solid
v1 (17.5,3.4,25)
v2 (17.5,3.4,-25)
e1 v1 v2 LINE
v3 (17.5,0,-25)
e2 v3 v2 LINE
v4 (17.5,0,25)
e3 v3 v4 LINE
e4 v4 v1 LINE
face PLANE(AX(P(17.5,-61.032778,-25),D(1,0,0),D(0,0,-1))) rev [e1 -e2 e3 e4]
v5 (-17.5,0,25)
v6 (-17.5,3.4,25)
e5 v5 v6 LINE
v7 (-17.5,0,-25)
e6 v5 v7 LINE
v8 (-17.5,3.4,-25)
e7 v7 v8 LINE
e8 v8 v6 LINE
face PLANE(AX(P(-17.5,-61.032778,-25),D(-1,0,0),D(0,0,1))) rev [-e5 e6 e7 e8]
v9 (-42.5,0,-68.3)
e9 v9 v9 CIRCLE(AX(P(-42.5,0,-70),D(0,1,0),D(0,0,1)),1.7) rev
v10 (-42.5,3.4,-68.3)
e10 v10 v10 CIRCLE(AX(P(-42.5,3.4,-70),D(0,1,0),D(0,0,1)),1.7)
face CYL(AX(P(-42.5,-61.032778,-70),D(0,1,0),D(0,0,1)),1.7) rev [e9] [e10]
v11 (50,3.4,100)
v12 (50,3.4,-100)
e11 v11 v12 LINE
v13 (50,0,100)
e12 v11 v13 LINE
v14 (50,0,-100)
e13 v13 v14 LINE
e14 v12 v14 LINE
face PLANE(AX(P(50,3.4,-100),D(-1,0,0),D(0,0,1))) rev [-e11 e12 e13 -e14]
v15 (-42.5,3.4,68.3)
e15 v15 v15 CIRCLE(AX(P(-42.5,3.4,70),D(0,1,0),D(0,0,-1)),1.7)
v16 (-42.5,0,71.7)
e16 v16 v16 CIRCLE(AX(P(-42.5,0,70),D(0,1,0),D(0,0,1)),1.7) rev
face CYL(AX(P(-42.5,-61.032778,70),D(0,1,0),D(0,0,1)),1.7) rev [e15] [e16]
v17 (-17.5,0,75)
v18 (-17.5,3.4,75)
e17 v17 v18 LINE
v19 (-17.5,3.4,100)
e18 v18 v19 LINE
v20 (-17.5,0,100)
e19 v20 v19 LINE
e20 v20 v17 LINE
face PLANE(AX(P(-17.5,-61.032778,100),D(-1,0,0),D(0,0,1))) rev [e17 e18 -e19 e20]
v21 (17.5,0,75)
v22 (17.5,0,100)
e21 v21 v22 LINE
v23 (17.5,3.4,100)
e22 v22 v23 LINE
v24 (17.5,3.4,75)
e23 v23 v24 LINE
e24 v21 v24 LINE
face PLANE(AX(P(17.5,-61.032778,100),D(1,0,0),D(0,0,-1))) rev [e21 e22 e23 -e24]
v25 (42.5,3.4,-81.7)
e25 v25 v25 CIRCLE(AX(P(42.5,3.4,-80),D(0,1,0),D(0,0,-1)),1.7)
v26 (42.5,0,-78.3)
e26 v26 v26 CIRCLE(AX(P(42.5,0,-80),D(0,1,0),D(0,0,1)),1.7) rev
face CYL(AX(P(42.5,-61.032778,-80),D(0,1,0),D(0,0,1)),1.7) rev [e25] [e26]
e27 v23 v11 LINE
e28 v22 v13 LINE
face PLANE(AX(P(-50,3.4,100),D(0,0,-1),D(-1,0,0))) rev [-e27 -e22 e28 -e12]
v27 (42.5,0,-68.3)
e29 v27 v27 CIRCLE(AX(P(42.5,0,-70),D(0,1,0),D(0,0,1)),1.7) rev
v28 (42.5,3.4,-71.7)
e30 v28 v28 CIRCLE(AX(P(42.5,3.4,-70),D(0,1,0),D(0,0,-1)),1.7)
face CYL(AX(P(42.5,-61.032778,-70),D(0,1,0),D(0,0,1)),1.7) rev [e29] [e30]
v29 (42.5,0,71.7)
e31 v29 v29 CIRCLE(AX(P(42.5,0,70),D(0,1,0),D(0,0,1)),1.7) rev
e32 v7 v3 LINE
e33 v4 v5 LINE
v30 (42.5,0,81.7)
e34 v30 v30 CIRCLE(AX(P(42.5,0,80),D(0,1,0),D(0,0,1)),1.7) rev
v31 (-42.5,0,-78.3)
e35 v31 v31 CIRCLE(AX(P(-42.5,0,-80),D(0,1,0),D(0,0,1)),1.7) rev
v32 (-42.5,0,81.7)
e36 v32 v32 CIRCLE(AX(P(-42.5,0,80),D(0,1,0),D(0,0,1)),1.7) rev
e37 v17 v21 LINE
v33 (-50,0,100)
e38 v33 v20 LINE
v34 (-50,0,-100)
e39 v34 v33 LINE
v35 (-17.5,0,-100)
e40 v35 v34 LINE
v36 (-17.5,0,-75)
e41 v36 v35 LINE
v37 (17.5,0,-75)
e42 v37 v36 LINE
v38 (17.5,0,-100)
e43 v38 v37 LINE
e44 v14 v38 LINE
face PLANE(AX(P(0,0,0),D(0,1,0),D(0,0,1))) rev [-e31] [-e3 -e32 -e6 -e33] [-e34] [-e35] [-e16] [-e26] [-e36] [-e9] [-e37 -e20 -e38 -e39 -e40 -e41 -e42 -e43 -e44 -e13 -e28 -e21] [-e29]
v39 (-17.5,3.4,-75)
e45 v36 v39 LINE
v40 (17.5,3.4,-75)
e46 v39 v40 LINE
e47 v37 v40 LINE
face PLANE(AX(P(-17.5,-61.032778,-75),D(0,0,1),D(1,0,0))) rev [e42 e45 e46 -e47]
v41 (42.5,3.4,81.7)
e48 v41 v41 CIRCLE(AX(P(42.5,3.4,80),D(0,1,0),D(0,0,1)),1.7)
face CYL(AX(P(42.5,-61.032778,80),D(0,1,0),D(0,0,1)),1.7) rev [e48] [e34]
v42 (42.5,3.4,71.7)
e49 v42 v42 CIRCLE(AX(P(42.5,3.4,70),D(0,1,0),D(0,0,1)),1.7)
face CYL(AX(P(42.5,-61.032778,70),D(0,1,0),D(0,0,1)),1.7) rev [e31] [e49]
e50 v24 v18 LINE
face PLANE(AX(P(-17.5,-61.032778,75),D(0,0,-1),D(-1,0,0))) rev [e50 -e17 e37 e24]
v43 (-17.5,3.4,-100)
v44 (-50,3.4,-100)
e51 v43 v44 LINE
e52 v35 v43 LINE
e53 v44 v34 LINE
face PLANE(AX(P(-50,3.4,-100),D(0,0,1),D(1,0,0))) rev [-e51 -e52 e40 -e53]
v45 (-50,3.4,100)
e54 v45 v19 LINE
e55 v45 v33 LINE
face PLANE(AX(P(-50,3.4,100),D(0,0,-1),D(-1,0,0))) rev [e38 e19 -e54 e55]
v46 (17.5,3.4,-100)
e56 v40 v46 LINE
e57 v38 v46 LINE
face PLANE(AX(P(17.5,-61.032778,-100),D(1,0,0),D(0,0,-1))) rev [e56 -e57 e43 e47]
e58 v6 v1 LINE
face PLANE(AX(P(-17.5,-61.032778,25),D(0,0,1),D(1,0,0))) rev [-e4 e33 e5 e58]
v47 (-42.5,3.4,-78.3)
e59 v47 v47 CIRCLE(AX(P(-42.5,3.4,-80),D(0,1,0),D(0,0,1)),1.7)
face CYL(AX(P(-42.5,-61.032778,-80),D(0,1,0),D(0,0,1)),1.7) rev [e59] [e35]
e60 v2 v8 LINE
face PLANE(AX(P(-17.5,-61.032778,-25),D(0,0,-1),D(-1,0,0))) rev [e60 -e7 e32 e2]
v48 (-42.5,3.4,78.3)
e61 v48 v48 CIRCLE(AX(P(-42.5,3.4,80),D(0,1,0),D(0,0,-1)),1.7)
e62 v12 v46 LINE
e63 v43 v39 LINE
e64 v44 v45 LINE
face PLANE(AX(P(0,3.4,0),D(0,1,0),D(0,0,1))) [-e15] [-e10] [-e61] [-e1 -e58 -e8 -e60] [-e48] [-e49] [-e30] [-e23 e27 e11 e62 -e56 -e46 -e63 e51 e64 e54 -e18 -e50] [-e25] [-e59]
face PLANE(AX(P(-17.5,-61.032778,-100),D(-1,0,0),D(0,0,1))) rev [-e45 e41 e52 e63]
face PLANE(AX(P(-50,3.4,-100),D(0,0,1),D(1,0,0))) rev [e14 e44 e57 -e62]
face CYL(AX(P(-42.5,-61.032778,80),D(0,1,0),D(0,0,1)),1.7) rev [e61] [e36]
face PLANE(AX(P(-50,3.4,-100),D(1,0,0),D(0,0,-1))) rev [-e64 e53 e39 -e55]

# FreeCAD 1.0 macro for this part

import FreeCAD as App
import Part
import Sketcher

V = App.Vector
Q = App.Units.Quantity


def add_polygon(sketch, points):
    """Adds a closed chain of lines whose ends are joined by coincident constraints."""
    first, n = sketch.GeometryCount, len(points)
    for a, b in zip(points, points[1:] + points[:1]):
        sketch.addGeometry(Part.LineSegment(App.Vector(*a, 0), App.Vector(*b, 0)), False)
    for i in range(n):
        sketch.addConstraint(Sketcher.Constraint("Coincident", first + i, 2, first + (i + 1) % n, 1))

doc = App.newDocument("Part")
body = doc.addObject("PartDesign::Body", "Body")

# Sketch on XZ plane
sketch1 = body.newObject("Sketcher::SketchObject", "Sketch")
sketch1.AttachmentSupport = (doc.getObject("XZ_Plane"), [""])
sketch1.MapMode = "FlatFace"
add_polygon(sketch1, [(-50, -100), (-50, 100), (50, 100), (50, -100)])  # lines 0-3
sketch1.addConstraint(Sketcher.Constraint("Vertical", 0))
sketch1.addConstraint(Sketcher.Constraint("Horizontal", 1))
sketch1.addConstraint(Sketcher.Constraint("Vertical", 2))
sketch1.addConstraint(Sketcher.Constraint("Horizontal", 3))
sketch1.addConstraint(Sketcher.Constraint("Symmetric", 0, 2, 2, 2, -1, 1))
sketch1.addConstraint(Sketcher.Constraint("DistanceX", 1, 1, 1, 2, Q("100 mm")))
sketch1.addConstraint(Sketcher.Constraint("DistanceY", 0, 1, 0, 2, Q("200 mm")))
pad1 = body.newObject("PartDesign::Pad", "Pad")
pad1.Profile = sketch1
pad1.Length = 3.4
pad1.Reversed = True

# Sketch on XZ plane
sketch2 = body.newObject("Sketcher::SketchObject", "Sketch001")
sketch2.AttachmentSupport = (doc.getObject("XZ_Plane"), [""])
sketch2.MapMode = "FlatFace"
sketch2.AttachmentOffset = App.Placement(V(0, 0, -3.4), App.Rotation())
sketch2.addGeometry(Part.Circle(V(42.5, 80, 0), V(0, 0, 1), 1.7), False)  # 0
sketch2.addGeometry(Part.Circle(V(42.5, 70, 0), V(0, 0, 1), 1.7), False)  # 1
sketch2.addGeometry(Part.Circle(V(-42.5, 80, 0), V(0, 0, 1), 1.7), False)  # 2
sketch2.addGeometry(Part.Circle(V(-42.5, 70, 0), V(0, 0, 1), 1.7), False)  # 3
sketch2.addGeometry(Part.Circle(V(42.5, -70, 0), V(0, 0, 1), 1.7), False)  # 4
sketch2.addGeometry(Part.Circle(V(42.5, -80, 0), V(0, 0, 1), 1.7), False)  # 5
sketch2.addGeometry(Part.Circle(V(-42.5, -70, 0), V(0, 0, 1), 1.7), False)  # 6
sketch2.addGeometry(Part.Circle(V(-42.5, -80, 0), V(0, 0, 1), 1.7), False)  # 7
add_polygon(sketch2, [(-17.5, -100), (-17.5, -75), (17.5, -75), (17.5, -100)])  # lines 8-11
add_polygon(sketch2, [(-17.5, -25), (-17.5, 25), (17.5, 25), (17.5, -25)])  # lines 12-15
add_polygon(sketch2, [(-17.5, 75), (-17.5, 100), (17.5, 100), (17.5, 75)])  # lines 16-19
sketch2.addConstraint(Sketcher.Constraint("Vertical", 8))
sketch2.addConstraint(Sketcher.Constraint("Horizontal", 9))
sketch2.addConstraint(Sketcher.Constraint("Vertical", 10))
sketch2.addConstraint(Sketcher.Constraint("Horizontal", 11))
sketch2.addConstraint(Sketcher.Constraint("Vertical", 12))
sketch2.addConstraint(Sketcher.Constraint("Horizontal", 13))
sketch2.addConstraint(Sketcher.Constraint("Vertical", 14))
sketch2.addConstraint(Sketcher.Constraint("Horizontal", 15))
sketch2.addConstraint(Sketcher.Constraint("Vertical", 16))
sketch2.addConstraint(Sketcher.Constraint("Horizontal", 17))
sketch2.addConstraint(Sketcher.Constraint("Vertical", 18))
sketch2.addConstraint(Sketcher.Constraint("Horizontal", 19))
sketch2.addConstraint(Sketcher.Constraint("Equal", 0, 1))
sketch2.addConstraint(Sketcher.Constraint("Equal", 1, 2))
sketch2.addConstraint(Sketcher.Constraint("Equal", 2, 3))
sketch2.addConstraint(Sketcher.Constraint("Equal", 3, 4))
sketch2.addConstraint(Sketcher.Constraint("Equal", 4, 5))
sketch2.addConstraint(Sketcher.Constraint("Equal", 5, 6))
sketch2.addConstraint(Sketcher.Constraint("Equal", 6, 7))
sketch2.addConstraint(Sketcher.Constraint("Symmetric", 3, 3, 4, 3, -1, 1))
sketch2.addConstraint(Sketcher.Constraint("Symmetric", 2, 3, 5, 3, -1, 1))
sketch2.addConstraint(Sketcher.Constraint("Symmetric", 1, 3, 6, 3, -1, 1))
sketch2.addConstraint(Sketcher.Constraint("Symmetric", 0, 3, 7, 3, -1, 1))
sketch2.addConstraint(Sketcher.Constraint("Symmetric", 12, 2, 14, 2, -1, 1))
sketch2.addConstraint(Sketcher.Constraint("Symmetric", 10, 2, 16, 2, -1, 1))
sketch2.addConstraint(Sketcher.Constraint("Symmetric", 8, 2, 18, 2, -1, 1))
sketch2.addConstraint(Sketcher.Constraint("Symmetric", 0, 3, 2, 3, -2))
sketch2.addConstraint(Sketcher.Constraint("Symmetric", 1, 3, 3, 3, -2))
sketch2.addConstraint(Sketcher.Constraint("Vertical", 0, 3, 1, 3))
sketch2.addConstraint(Sketcher.Constraint("Vertical", 11, 2, 12, 2))
sketch2.addConstraint(Sketcher.Constraint("Vertical", 10, 2, 13, 2))
sketch2.addConstraint(Sketcher.Constraint("Diameter", 0, Q("3.4 mm")))
sketch2.addConstraint(Sketcher.Constraint("DistanceX", 9, 1, 9, 2, Q("35 mm")))
sketch2.addConstraint(Sketcher.Constraint("DistanceY", 8, 1, 8, 2, Q("25 mm")))
sketch2.addConstraint(Sketcher.Constraint("DistanceY", 12, 1, 12, 2, Q("50 mm")))
sketch2.addConstraint(Sketcher.Constraint("DistanceY", -1, 1, 0, 3, Q("80 mm")))
sketch2.addConstraint(Sketcher.Constraint("DistanceY", -1, 1, 1, 3, Q("70 mm")))
sketch2.addConstraint(Sketcher.Constraint("DistanceY", 8, 2, -1, 1, Q("75 mm")))
sketch2.addConstraint(Sketcher.Constraint("DistanceX", 2, 3, 0, 3, Q("85 mm")))
pocket1 = body.newObject("PartDesign::Pocket", "Pocket")
pocket1.Profile = sketch2
pocket1.Length = 3.4
pocket1.Reversed = True

doc.recompute()
